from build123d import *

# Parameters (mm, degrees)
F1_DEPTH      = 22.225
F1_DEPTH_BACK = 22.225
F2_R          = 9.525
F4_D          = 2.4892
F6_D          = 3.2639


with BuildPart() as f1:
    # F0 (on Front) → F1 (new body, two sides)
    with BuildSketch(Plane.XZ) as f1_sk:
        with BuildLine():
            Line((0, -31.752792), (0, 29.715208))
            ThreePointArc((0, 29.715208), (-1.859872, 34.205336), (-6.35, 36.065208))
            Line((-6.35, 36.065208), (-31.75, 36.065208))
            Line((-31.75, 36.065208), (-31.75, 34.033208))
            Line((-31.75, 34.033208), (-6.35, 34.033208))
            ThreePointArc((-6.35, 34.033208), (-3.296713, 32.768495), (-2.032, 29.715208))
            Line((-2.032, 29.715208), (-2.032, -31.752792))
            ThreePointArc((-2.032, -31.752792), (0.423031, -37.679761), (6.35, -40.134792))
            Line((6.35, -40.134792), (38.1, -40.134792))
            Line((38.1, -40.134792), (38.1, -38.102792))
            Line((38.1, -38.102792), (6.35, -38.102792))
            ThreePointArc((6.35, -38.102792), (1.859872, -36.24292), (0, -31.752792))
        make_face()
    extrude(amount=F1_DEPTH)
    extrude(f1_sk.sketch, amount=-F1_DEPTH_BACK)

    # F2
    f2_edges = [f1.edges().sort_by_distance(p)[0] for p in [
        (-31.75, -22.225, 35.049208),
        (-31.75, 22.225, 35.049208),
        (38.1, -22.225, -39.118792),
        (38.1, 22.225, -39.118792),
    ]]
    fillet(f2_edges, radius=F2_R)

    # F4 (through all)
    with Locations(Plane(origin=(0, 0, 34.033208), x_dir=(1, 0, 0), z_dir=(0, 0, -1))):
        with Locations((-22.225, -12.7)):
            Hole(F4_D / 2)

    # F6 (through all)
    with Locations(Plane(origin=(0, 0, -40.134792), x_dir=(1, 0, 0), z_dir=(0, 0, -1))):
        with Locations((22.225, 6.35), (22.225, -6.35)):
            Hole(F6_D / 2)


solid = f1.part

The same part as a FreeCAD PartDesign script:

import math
import FreeCAD as App
import Part
import Sketcher
from FreeCAD import Vector
Q = App.Units.Quantity


def edges_at(feature, points):
    """Names of the edges that pass closest to the given points."""
    edges = feature.Shape.Edges
    near = lambda p: min(range(len(edges)), key=lambda i: edges[i].distToShape(Part.Vertex(*p))[0])
    return sorted({f"Edge{near(p) + 1}" for p in points})

doc = App.newDocument("Part")
body = doc.addObject("PartDesign::Body", "Body")

sketch1 = doc.addObject("Sketcher::SketchObject", "Sketch")
body.addObject(sketch1)
sketch1.AttachmentSupport = (doc.XZ_Plane, [""])
sketch1.MapMode = "FlatFace"
sketch1.addGeometry(Part.LineSegment(Vector(0, -31.752792, 0), Vector(0, 29.715208, 0)), False)
sketch1.addGeometry(Part.ArcOfCircle(Part.Circle(Vector(-6.35, 29.715208, 0), Vector(0, 0, 1), 6.35), math.radians(0.000002), math.radians(89.999998)), False)
sketch1.addGeometry(Part.LineSegment(Vector(-6.35, 36.065208, 0), Vector(-31.75, 36.065208, 0)), False)
sketch1.addGeometry(Part.LineSegment(Vector(-31.75, 36.065208, 0), Vector(-31.75, 34.033208, 0)), False)
sketch1.addGeometry(Part.LineSegment(Vector(-31.75, 34.033208, 0), Vector(-6.35, 34.033208, 0)), False)
sketch1.addGeometry(Part.ArcOfCircle(Part.Circle(Vector(-6.35, 29.715208, 0), Vector(0, 0, 1), 4.318), math.radians(0.000004), math.radians(89.999996)), False)
sketch1.addGeometry(Part.LineSegment(Vector(-2.032, 29.715208, 0), Vector(-2.032, -31.752792, 0)), False)
sketch1.addGeometry(Part.ArcOfCircle(Part.Circle(Vector(6.35, -31.752792, 0), Vector(0, 0, 1), 8.382), math.radians(-179.999999), math.radians(-90.000001)), False)
sketch1.addGeometry(Part.LineSegment(Vector(6.35, -40.134792, 0), Vector(38.1, -40.134792, 0)), False)
sketch1.addGeometry(Part.LineSegment(Vector(38.1, -40.134792, 0), Vector(38.1, -38.102792, 0)), False)
sketch1.addGeometry(Part.LineSegment(Vector(38.1, -38.102792, 0), Vector(6.35, -38.102792, 0)), False)
sketch1.addGeometry(Part.ArcOfCircle(Part.Circle(Vector(6.35, -31.752792, 0), Vector(0, 0, 1), 6.35), math.radians(-179.999998), math.radians(-90.000002)), False)
sketch1.addConstraint(Sketcher.Constraint("Tangent", 0, 2, 1, 1))
sketch1.addConstraint(Sketcher.Constraint("Tangent", 1, 2, 2, 1))
sketch1.addConstraint(Sketcher.Constraint("Coincident", 2, 2, 3, 1))
sketch1.addConstraint(Sketcher.Constraint("Coincident", 3, 2, 4, 1))
sketch1.addConstraint(Sketcher.Constraint("Tangent", 4, 2, 5, 2))
sketch1.addConstraint(Sketcher.Constraint("Tangent", 5, 1, 6, 1))
sketch1.addConstraint(Sketcher.Constraint("Tangent", 6, 2, 7, 1))
sketch1.addConstraint(Sketcher.Constraint("Tangent", 7, 2, 8, 1))
sketch1.addConstraint(Sketcher.Constraint("Coincident", 8, 2, 9, 1))
sketch1.addConstraint(Sketcher.Constraint("Coincident", 9, 2, 10, 1))
sketch1.addConstraint(Sketcher.Constraint("Tangent", 10, 2, 11, 2))
sketch1.addConstraint(Sketcher.Constraint("Tangent", 11, 1, 0, 1))
sketch1.addConstraint(Sketcher.Constraint("Vertical", 0))
sketch1.addConstraint(Sketcher.Constraint("Horizontal", 2))
sketch1.addConstraint(Sketcher.Constraint("Vertical", 3))
sketch1.addConstraint(Sketcher.Constraint("Horizontal", 4))
sketch1.addConstraint(Sketcher.Constraint("Vertical", 6))
sketch1.addConstraint(Sketcher.Constraint("Horizontal", 8))
sketch1.addConstraint(Sketcher.Constraint("Vertical", 9))
sketch1.addConstraint(Sketcher.Constraint("Horizontal", 10))
sketch1.addConstraint(Sketcher.Constraint("Coincident", 5, 3, 1, 3))
sketch1.addConstraint(Sketcher.Constraint("Coincident", 11, 3, 7, 3))
sketch1.addConstraint(Sketcher.Constraint("Equal", 1, 11))
sketch1.addConstraint(Sketcher.Constraint("PointOnObject", 0, 2, -2))
sketch1.addConstraint(Sketcher.Constraint("DistanceX", 2, 2, 2, 1, Q("1 in")))
sketch1.addConstraint(Sketcher.Constraint("Radius", 1, Q("0.25 in")))
sketch1.addConstraint(Sketcher.Constraint("Radius", 5, Q("0.17 in")))
sketch1.addConstraint(Sketcher.Constraint("DistanceX", 8, 1, 8, 2, Q("1.25 in")))
sketch1.addConstraint(Sketcher.Constraint("DistanceY", 0, 1, 0, 2, Q("2.42 in")))
sketch1.addConstraint(Sketcher.Constraint("DistanceY", 7, 3, -1, 1, 31.752792))
pad1 = doc.addObject("PartDesign::Pad", "Pad")
body.addObject(pad1)
pad1.Profile = sketch1
pad1.Type = "TwoLengths"
pad1.Length = Q("0.875 in")
pad1.Length2 = Q("0.875 in")
doc.recompute()

fillet = doc.addObject("PartDesign::Fillet", "Fillet")
body.addObject(fillet)
fillet.Base = (pad1, edges_at(pad1, [
    (-31.75, -22.225, 35.049),
    (-31.75, 22.225, 35.049),
    (38.1, -22.225, -39.119),
    (38.1, 22.225, -39.119),
]))
fillet.Radius = Q("0.375 in")

sketch2 = doc.addObject("Sketcher::SketchObject", "Sketch001")
body.addObject(sketch2)
sketch2.AttachmentSupport = (doc.XY_Plane, [""])
sketch2.MapMode = "FlatFace"
sketch2.AttachmentOffset = App.Placement(Vector(0, 0, 34.033208), App.Rotation())
sketch2.addGeometry(Part.Circle(Vector(-22.225, 12.7, 0), Vector(0, 0, 1), 1.2446), False)
sketch2.addConstraint(Sketcher.Constraint("Diameter", 0, Q("0.098 in")))
sketch2.addConstraint(Sketcher.Constraint("DistanceY", -1, 1, 0, 3, Q("0.5 in")))
sketch2.addConstraint(Sketcher.Constraint("DistanceX", 0, 3, -1, 1, Q("0.875 in")))
doc.recompute()
hole = doc.addObject("PartDesign::Hole", "Hole")
body.addObject(hole)
hole.Profile = sketch2
hole.ThreadType = "None"
hole.Diameter = Q("0.098 in")
hole.DepthType = "ThroughAll"
hole.Reversed = True

sketch3 = doc.addObject("Sketcher::SketchObject", "Sketch002")
body.addObject(sketch3)
sketch3.AttachmentSupport = (doc.XY_Plane, [""])
sketch3.MapMode = "FlatFace"
sketch3.AttachmentOffset = App.Placement(Vector(0, 0, -40.134792), App.Rotation())
sketch3.addGeometry(Part.Circle(Vector(22.225, -6.35, 0), Vector(0, 0, 1), 1.63195), False)
sketch3.addGeometry(Part.Circle(Vector(22.225, 6.35, 0), Vector(0, 0, 1), 1.63195), False)
sketch3.addConstraint(Sketcher.Constraint("Equal", 0, 1))
sketch3.addConstraint(Sketcher.Constraint("Symmetric", 0, 3, 1, 3, -1))
sketch3.addConstraint(Sketcher.Constraint("Diameter", 0, Q("0.1285 in")))
sketch3.addConstraint(Sketcher.Constraint("DistanceY", 0, 3, 1, 3, Q("0.5 in")))
sketch3.addConstraint(Sketcher.Constraint("DistanceX", -1, 1, 0, 3, Q("0.875 in")))
doc.recompute()
hole2 = doc.addObject("PartDesign::Hole", "Hole001")
body.addObject(hole2)
hole2.Profile = sketch3
hole2.ThreadType = "None"
hole2.Diameter = Q("0.1285 in")
hole2.DepthType = "ThroughAll"
hole2.Reversed = True

doc.recompute()
